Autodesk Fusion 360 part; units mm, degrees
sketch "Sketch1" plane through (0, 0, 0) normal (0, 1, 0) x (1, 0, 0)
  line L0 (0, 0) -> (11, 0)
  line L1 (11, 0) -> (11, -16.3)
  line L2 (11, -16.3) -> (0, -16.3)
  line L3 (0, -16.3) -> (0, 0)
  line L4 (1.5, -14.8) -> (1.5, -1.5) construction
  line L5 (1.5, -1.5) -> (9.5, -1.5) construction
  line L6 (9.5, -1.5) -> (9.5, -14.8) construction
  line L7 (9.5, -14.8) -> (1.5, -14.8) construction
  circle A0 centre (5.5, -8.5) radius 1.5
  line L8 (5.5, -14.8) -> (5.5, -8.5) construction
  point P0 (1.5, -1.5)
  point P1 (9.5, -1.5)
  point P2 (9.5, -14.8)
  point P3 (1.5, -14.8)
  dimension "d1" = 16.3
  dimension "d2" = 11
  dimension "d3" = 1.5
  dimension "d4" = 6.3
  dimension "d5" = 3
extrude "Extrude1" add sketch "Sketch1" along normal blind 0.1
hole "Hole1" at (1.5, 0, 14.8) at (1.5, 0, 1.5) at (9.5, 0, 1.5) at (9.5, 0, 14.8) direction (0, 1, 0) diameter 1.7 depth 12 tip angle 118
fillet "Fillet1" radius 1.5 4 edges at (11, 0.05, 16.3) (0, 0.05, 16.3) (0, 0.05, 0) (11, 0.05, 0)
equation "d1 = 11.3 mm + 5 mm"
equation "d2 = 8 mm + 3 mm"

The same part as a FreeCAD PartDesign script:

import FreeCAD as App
import Part
import Sketcher

V = App.Vector
Q = App.Units.Quantity


def edges_at(feature, points):
    """Names of the edges that pass closest to the given points."""
    edges = feature.Shape.Edges
    near = lambda p: min(range(len(edges)), key=lambda i: edges[i].distToShape(Part.Vertex(*p))[0])
    return sorted({f"Edge{near(p) + 1}" for p in points})

doc = App.newDocument("Part")
body = doc.addObject("PartDesign::Body", "Body")

sketch1 = doc.addObject("Sketcher::SketchObject", "Sketch")
body.addObject(sketch1)
sketch1.AttachmentSupport = (doc.XZ_Plane, [""])
sketch1.MapMode = "FlatFace"
sketch1.addGeometry([
    Part.LineSegment(V(11, 0, 0), V(0, 0, 0)),
    Part.LineSegment(V(0, 0, 0), V(0, 16.3, 0)),
    Part.LineSegment(V(0, 16.3, 0), V(11, 16.3, 0)),
    Part.LineSegment(V(11, 16.3, 0), V(11, 0, 0)),
    Part.Circle(V(5.5, 8.5, 0), V(0, 0, 1), 1.5),
], False)
sketch1.addConstraint([
    Sketcher.Constraint("Coincident", 0, 2, 1, 1),
    Sketcher.Constraint("Coincident", 1, 2, 2, 1),
    Sketcher.Constraint("Coincident", 2, 2, 3, 1),
    Sketcher.Constraint("Coincident", 3, 2, 0, 1),
    Sketcher.Constraint("Horizontal", 0),
    Sketcher.Constraint("Vertical", 1),
    Sketcher.Constraint("Horizontal", 2),
    Sketcher.Constraint("Vertical", 3),
    Sketcher.Constraint("Coincident", 0, 2, -1, 1),
    Sketcher.Constraint("Diameter", 4, Q("3 mm")),
    Sketcher.Constraint("DistanceX", 0, 2, 0, 1, Q("11 mm")),
    Sketcher.Constraint("DistanceY", 1, 1, 1, 2, Q("16.3 mm")),
    Sketcher.Constraint("DistanceX", -1, 1, 4, 3, Q("5.5 mm")),
    Sketcher.Constraint("DistanceY", -1, 1, 4, 3, Q("8.5 mm")),
])
pad1 = doc.addObject("PartDesign::Pad", "Pad")
body.addObject(pad1)
pad1.Profile = sketch1
pad1.Length = 0.1
pad1.Reversed = True

sketch2 = doc.addObject("Sketcher::SketchObject", "Sketch001")
body.addObject(sketch2)
sketch2.AttachmentSupport = (doc.XZ_Plane, [""])
sketch2.MapMode = "FlatFace"
sketch2.addGeometry([
    Part.Circle(V(1.5, 14.8, 0), V(0, 0, 1), 0.8),
    Part.Circle(V(1.5, 1.5, 0), V(0, 0, 1), 0.8),
    Part.Circle(V(9.5, 1.5, 0), V(0, 0, 1), 0.8),
    Part.Circle(V(9.5, 14.8, 0), V(0, 0, 1), 0.8),
], False)
sketch2.addConstraint([
    Sketcher.Constraint("Equal", 0, 1),
    Sketcher.Constraint("Equal", 1, 2),
    Sketcher.Constraint("Equal", 2, 3),
    Sketcher.Constraint("Horizontal", 1, 3, 2, 3),
    Sketcher.Constraint("Horizontal", 0, 3, 3, 3),
    Sketcher.Constraint("Vertical", 0, 3, 1, 3),
    Sketcher.Constraint("Vertical", 2, 3, 3, 3),
    Sketcher.Constraint("Diameter", 0, Q("1.7 mm")),
    Sketcher.Constraint("DistanceX", 1, 3, 2, 3, Q("8 mm")),
    Sketcher.Constraint("DistanceX", -1, 1, 0, 3, Q("1.5 mm")),
    Sketcher.Constraint("DistanceY", -1, 1, 0, 3, Q("14.8 mm")),
    Sketcher.Constraint("DistanceY", -1, 1, 1, 3, Q("1.5 mm")),
])
doc.recompute()
hole = doc.addObject("PartDesign::Hole", "Hole")
body.addObject(hole)
hole.Profile = sketch2
hole.ThreadType = "None"
hole.Diameter = 1.7
hole.DepthType = "Dimension"
hole.Depth = 12
hole.DrillPoint = "Angled"
hole.DrillPointAngle = 118
doc.recompute()

fillet = doc.addObject("PartDesign::Fillet", "Fillet")
body.addObject(fillet)
fillet.Base = (hole, edges_at(hole, [
    (11, 0.05, 16.3),
    (0, 0.05, 16.3),
    (0, 0.05, 0),
    (11, 0.05, 0),
]))
fillet.Radius = 1.5

doc.recompute()
